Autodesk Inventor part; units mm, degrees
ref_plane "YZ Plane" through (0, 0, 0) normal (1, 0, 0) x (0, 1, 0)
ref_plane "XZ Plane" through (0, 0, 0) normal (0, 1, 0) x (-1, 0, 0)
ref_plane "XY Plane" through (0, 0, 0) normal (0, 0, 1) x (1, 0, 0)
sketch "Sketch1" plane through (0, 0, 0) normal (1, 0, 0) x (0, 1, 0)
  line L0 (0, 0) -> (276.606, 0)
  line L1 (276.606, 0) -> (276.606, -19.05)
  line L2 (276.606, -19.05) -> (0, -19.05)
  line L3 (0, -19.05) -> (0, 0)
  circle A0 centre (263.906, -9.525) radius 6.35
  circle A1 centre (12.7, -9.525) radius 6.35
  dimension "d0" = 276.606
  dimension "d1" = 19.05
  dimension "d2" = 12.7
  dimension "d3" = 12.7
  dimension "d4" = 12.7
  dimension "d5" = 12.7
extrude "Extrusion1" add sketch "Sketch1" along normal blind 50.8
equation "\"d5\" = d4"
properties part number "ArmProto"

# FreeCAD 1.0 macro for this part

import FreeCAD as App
import Part
import Sketcher
Q = App.Units.Quantity


def add_polygon(sketch, points):
    """Adds a closed chain of lines whose ends are joined by coincident constraints."""
    first, n = sketch.GeometryCount, len(points)
    for a, b in zip(points, points[1:] + points[:1]):
        sketch.addGeometry(Part.LineSegment(App.Vector(*a, 0), App.Vector(*b, 0)), False)
    for i in range(n):
        sketch.addConstraint(Sketcher.Constraint("Coincident", first + i, 2, first + (i + 1) % n, 1))

doc = App.newDocument("Part")
body = doc.addObject("PartDesign::Body", "Body")

# Sketch on YZ plane
sketch1 = body.newObject("Sketcher::SketchObject", "Sketch")
sketch1.AttachmentSupport = (doc.getObject("YZ_Plane"), [""])
sketch1.MapMode = "FlatFace"
add_polygon(sketch1, [(276.606, 0), (0, 0), (0, -19.05), (276.606, -19.05)])  # lines 0-3
sketch1.addGeometry(Part.Circle(App.Vector(12.7, -9.525, 0), App.Vector(0, 0, 1), 6.35), False)  # 4
sketch1.addGeometry(Part.Circle(App.Vector(263.906, -9.525, 0), App.Vector(0, 0, 1), 6.35), False)  # 5
sketch1.addConstraint([
    Sketcher.Constraint("Horizontal", 0),
    Sketcher.Constraint("Vertical", 1),
    Sketcher.Constraint("Horizontal", 2),
    Sketcher.Constraint("Vertical", 3),
    Sketcher.Constraint("Coincident", 0, 2, -1, 1),
    Sketcher.Constraint("Equal", 4, 5),
    Sketcher.Constraint("Horizontal", 4, 3, 5, 3),
    Sketcher.Constraint("Diameter", 4, Q("0.5 in")),
    Sketcher.Constraint("DistanceX", 0, 2, 0, 1, Q("10.89 in")),
    Sketcher.Constraint("DistanceY", 1, 2, 1, 1, Q("0.75 in")),
    Sketcher.Constraint("DistanceX", -1, 1, 4, 3, Q("0.5 in")),
    Sketcher.Constraint("DistanceX", 5, 3, 2, 2, Q("0.5 in")),
    Sketcher.Constraint("DistanceY", 4, 3, -1, 1, Q("0.375 in")),
])
pad1 = body.newObject("PartDesign::Pad", "Pad")
pad1.Profile = sketch1
pad1.Length = Q("2 in")

doc.recompute()
